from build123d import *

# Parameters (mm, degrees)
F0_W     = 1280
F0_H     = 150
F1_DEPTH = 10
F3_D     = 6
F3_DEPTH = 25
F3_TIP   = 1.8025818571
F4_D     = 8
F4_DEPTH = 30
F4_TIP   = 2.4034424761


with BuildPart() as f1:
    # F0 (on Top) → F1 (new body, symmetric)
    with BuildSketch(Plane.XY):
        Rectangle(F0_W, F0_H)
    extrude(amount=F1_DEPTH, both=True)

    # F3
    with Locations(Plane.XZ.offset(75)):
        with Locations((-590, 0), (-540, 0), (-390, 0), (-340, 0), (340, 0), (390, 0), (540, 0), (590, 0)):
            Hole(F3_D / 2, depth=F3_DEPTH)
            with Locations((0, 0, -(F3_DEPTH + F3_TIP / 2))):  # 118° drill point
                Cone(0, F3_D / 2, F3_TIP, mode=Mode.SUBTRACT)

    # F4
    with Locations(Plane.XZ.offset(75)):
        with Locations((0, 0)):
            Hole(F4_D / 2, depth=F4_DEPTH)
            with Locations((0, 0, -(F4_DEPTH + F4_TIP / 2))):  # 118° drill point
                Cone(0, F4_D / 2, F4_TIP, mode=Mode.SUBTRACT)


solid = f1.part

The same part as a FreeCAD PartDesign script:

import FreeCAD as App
import Part
import Sketcher
from FreeCAD import Vector


def add_polygon(sketch, points):
    """Adds a closed chain of lines whose ends are joined by coincident constraints."""
    first, n = sketch.GeometryCount, len(points)
    for a, b in zip(points, points[1:] + points[:1]):
        sketch.addGeometry(Part.LineSegment(App.Vector(*a, 0), App.Vector(*b, 0)), False)
    for i in range(n):
        sketch.addConstraint(Sketcher.Constraint("Coincident", first + i, 2, first + (i + 1) % n, 1))

doc = App.newDocument("Part")
body = doc.addObject("PartDesign::Body", "Body")

sketch1 = body.newObject("Sketcher::SketchObject", "Sketch")
sketch1.AttachmentSupport = (doc.getObject("XY_Plane"), [""])
sketch1.MapMode = "FlatFace"
add_polygon(sketch1, [(-640, 75), (-640, -75), (640, -75), (640, 75)])
sketch1.addConstraint([
    Sketcher.Constraint("Vertical", 0),
    Sketcher.Constraint("Horizontal", 1),
    Sketcher.Constraint("Vertical", 2),
    Sketcher.Constraint("Horizontal", 3),
    Sketcher.Constraint("Symmetric", 0, 2, 2, 2, -1, 1),
    Sketcher.Constraint("DistanceX", 1, 1, 1, 2, 1280.0),
    Sketcher.Constraint("DistanceY", 0, 2, 0, 1, 150.0),
])
pad1 = body.newObject("PartDesign::Pad", "Pad")
pad1.Profile = sketch1
pad1.Length = 20
pad1.Midplane = True

sketch2 = body.newObject("Sketcher::SketchObject", "Sketch001")
sketch2.AttachmentSupport = (doc.getObject("XZ_Plane"), [""])
sketch2.MapMode = "FlatFace"
sketch2.AttachmentOffset = App.Placement(Vector(0, 0, 75), App.Rotation())
sketch2.addGeometry([
    Part.Circle(Vector(-590, 0, 0), Vector(0, 0, 1), 3),
    Part.Circle(Vector(-540, 0, 0), Vector(0, 0, 1), 3),
    Part.Circle(Vector(-390, 0, 0), Vector(0, 0, 1), 3),
    Part.Circle(Vector(-340, 0, 0), Vector(0, 0, 1), 3),
    Part.Circle(Vector(340, 0, 0), Vector(0, 0, 1), 3),
    Part.Circle(Vector(390, 0, 0), Vector(0, 0, 1), 3),
    Part.Circle(Vector(540, 0, 0), Vector(0, 0, 1), 3),
    Part.Circle(Vector(590, 0, 0), Vector(0, 0, 1), 3),
], False)
sketch2.addConstraint([
    Sketcher.Constraint("Equal", 0, 1),
    Sketcher.Constraint("Equal", 1, 2),
    Sketcher.Constraint("Equal", 2, 3),
    Sketcher.Constraint("Equal", 3, 4),
    Sketcher.Constraint("Equal", 4, 5),
    Sketcher.Constraint("Equal", 5, 6),
    Sketcher.Constraint("Equal", 6, 7),
    Sketcher.Constraint("Symmetric", 3, 3, 4, 3, -1, 1),
    Sketcher.Constraint("Symmetric", 2, 3, 5, 3, -1, 1),
    Sketcher.Constraint("Symmetric", 1, 3, 6, 3, -1, 1),
    Sketcher.Constraint("Symmetric", 0, 3, 7, 3, -1, 1),
    Sketcher.Constraint("PointOnObject", 0, 3, -1),
    Sketcher.Constraint("PointOnObject", 1, 3, -1),
    Sketcher.Constraint("PointOnObject", 2, 3, -1),
    Sketcher.Constraint("PointOnObject", 3, 3, -1),
    Sketcher.Constraint("Diameter", 0, 6.0),
    Sketcher.Constraint("DistanceX", 0, 3, -1, 1, 590.0),
    Sketcher.Constraint("DistanceX", 1, 3, -1, 1, 540.0),
    Sketcher.Constraint("DistanceX", 2, 3, -1, 1, 390.0),
    Sketcher.Constraint("DistanceX", 3, 3, -1, 1, 340.0),
])
doc.recompute()
hole = body.newObject("PartDesign::Hole", "Hole")
hole.Profile = sketch2
hole.ThreadType = "None"
hole.Diameter = 6
hole.DepthType = "Dimension"
hole.Depth = 25
hole.DrillPoint = "Angled"
hole.DrillPointAngle = 118

sketch3 = body.newObject("Sketcher::SketchObject", "Sketch002")
sketch3.AttachmentSupport = (doc.getObject("XZ_Plane"), [""])
sketch3.MapMode = "FlatFace"
sketch3.AttachmentOffset = App.Placement(Vector(0, 0, 75), App.Rotation())
sketch3.addGeometry(Part.Circle(Vector(0, 0, 0), Vector(0, 0, 1), 4), False)
sketch3.addConstraint([
    Sketcher.Constraint("Coincident", 0, 3, -1, 1),
    Sketcher.Constraint("Diameter", 0, 8.0),
])
doc.recompute()
hole2 = body.newObject("PartDesign::Hole", "Hole001")
hole2.Profile = sketch3
hole2.ThreadType = "None"
hole2.Diameter = 8
hole2.DepthType = "Dimension"
hole2.Depth = 30
hole2.DrillPoint = "Angled"
hole2.DrillPointAngle = 118

doc.recompute()
